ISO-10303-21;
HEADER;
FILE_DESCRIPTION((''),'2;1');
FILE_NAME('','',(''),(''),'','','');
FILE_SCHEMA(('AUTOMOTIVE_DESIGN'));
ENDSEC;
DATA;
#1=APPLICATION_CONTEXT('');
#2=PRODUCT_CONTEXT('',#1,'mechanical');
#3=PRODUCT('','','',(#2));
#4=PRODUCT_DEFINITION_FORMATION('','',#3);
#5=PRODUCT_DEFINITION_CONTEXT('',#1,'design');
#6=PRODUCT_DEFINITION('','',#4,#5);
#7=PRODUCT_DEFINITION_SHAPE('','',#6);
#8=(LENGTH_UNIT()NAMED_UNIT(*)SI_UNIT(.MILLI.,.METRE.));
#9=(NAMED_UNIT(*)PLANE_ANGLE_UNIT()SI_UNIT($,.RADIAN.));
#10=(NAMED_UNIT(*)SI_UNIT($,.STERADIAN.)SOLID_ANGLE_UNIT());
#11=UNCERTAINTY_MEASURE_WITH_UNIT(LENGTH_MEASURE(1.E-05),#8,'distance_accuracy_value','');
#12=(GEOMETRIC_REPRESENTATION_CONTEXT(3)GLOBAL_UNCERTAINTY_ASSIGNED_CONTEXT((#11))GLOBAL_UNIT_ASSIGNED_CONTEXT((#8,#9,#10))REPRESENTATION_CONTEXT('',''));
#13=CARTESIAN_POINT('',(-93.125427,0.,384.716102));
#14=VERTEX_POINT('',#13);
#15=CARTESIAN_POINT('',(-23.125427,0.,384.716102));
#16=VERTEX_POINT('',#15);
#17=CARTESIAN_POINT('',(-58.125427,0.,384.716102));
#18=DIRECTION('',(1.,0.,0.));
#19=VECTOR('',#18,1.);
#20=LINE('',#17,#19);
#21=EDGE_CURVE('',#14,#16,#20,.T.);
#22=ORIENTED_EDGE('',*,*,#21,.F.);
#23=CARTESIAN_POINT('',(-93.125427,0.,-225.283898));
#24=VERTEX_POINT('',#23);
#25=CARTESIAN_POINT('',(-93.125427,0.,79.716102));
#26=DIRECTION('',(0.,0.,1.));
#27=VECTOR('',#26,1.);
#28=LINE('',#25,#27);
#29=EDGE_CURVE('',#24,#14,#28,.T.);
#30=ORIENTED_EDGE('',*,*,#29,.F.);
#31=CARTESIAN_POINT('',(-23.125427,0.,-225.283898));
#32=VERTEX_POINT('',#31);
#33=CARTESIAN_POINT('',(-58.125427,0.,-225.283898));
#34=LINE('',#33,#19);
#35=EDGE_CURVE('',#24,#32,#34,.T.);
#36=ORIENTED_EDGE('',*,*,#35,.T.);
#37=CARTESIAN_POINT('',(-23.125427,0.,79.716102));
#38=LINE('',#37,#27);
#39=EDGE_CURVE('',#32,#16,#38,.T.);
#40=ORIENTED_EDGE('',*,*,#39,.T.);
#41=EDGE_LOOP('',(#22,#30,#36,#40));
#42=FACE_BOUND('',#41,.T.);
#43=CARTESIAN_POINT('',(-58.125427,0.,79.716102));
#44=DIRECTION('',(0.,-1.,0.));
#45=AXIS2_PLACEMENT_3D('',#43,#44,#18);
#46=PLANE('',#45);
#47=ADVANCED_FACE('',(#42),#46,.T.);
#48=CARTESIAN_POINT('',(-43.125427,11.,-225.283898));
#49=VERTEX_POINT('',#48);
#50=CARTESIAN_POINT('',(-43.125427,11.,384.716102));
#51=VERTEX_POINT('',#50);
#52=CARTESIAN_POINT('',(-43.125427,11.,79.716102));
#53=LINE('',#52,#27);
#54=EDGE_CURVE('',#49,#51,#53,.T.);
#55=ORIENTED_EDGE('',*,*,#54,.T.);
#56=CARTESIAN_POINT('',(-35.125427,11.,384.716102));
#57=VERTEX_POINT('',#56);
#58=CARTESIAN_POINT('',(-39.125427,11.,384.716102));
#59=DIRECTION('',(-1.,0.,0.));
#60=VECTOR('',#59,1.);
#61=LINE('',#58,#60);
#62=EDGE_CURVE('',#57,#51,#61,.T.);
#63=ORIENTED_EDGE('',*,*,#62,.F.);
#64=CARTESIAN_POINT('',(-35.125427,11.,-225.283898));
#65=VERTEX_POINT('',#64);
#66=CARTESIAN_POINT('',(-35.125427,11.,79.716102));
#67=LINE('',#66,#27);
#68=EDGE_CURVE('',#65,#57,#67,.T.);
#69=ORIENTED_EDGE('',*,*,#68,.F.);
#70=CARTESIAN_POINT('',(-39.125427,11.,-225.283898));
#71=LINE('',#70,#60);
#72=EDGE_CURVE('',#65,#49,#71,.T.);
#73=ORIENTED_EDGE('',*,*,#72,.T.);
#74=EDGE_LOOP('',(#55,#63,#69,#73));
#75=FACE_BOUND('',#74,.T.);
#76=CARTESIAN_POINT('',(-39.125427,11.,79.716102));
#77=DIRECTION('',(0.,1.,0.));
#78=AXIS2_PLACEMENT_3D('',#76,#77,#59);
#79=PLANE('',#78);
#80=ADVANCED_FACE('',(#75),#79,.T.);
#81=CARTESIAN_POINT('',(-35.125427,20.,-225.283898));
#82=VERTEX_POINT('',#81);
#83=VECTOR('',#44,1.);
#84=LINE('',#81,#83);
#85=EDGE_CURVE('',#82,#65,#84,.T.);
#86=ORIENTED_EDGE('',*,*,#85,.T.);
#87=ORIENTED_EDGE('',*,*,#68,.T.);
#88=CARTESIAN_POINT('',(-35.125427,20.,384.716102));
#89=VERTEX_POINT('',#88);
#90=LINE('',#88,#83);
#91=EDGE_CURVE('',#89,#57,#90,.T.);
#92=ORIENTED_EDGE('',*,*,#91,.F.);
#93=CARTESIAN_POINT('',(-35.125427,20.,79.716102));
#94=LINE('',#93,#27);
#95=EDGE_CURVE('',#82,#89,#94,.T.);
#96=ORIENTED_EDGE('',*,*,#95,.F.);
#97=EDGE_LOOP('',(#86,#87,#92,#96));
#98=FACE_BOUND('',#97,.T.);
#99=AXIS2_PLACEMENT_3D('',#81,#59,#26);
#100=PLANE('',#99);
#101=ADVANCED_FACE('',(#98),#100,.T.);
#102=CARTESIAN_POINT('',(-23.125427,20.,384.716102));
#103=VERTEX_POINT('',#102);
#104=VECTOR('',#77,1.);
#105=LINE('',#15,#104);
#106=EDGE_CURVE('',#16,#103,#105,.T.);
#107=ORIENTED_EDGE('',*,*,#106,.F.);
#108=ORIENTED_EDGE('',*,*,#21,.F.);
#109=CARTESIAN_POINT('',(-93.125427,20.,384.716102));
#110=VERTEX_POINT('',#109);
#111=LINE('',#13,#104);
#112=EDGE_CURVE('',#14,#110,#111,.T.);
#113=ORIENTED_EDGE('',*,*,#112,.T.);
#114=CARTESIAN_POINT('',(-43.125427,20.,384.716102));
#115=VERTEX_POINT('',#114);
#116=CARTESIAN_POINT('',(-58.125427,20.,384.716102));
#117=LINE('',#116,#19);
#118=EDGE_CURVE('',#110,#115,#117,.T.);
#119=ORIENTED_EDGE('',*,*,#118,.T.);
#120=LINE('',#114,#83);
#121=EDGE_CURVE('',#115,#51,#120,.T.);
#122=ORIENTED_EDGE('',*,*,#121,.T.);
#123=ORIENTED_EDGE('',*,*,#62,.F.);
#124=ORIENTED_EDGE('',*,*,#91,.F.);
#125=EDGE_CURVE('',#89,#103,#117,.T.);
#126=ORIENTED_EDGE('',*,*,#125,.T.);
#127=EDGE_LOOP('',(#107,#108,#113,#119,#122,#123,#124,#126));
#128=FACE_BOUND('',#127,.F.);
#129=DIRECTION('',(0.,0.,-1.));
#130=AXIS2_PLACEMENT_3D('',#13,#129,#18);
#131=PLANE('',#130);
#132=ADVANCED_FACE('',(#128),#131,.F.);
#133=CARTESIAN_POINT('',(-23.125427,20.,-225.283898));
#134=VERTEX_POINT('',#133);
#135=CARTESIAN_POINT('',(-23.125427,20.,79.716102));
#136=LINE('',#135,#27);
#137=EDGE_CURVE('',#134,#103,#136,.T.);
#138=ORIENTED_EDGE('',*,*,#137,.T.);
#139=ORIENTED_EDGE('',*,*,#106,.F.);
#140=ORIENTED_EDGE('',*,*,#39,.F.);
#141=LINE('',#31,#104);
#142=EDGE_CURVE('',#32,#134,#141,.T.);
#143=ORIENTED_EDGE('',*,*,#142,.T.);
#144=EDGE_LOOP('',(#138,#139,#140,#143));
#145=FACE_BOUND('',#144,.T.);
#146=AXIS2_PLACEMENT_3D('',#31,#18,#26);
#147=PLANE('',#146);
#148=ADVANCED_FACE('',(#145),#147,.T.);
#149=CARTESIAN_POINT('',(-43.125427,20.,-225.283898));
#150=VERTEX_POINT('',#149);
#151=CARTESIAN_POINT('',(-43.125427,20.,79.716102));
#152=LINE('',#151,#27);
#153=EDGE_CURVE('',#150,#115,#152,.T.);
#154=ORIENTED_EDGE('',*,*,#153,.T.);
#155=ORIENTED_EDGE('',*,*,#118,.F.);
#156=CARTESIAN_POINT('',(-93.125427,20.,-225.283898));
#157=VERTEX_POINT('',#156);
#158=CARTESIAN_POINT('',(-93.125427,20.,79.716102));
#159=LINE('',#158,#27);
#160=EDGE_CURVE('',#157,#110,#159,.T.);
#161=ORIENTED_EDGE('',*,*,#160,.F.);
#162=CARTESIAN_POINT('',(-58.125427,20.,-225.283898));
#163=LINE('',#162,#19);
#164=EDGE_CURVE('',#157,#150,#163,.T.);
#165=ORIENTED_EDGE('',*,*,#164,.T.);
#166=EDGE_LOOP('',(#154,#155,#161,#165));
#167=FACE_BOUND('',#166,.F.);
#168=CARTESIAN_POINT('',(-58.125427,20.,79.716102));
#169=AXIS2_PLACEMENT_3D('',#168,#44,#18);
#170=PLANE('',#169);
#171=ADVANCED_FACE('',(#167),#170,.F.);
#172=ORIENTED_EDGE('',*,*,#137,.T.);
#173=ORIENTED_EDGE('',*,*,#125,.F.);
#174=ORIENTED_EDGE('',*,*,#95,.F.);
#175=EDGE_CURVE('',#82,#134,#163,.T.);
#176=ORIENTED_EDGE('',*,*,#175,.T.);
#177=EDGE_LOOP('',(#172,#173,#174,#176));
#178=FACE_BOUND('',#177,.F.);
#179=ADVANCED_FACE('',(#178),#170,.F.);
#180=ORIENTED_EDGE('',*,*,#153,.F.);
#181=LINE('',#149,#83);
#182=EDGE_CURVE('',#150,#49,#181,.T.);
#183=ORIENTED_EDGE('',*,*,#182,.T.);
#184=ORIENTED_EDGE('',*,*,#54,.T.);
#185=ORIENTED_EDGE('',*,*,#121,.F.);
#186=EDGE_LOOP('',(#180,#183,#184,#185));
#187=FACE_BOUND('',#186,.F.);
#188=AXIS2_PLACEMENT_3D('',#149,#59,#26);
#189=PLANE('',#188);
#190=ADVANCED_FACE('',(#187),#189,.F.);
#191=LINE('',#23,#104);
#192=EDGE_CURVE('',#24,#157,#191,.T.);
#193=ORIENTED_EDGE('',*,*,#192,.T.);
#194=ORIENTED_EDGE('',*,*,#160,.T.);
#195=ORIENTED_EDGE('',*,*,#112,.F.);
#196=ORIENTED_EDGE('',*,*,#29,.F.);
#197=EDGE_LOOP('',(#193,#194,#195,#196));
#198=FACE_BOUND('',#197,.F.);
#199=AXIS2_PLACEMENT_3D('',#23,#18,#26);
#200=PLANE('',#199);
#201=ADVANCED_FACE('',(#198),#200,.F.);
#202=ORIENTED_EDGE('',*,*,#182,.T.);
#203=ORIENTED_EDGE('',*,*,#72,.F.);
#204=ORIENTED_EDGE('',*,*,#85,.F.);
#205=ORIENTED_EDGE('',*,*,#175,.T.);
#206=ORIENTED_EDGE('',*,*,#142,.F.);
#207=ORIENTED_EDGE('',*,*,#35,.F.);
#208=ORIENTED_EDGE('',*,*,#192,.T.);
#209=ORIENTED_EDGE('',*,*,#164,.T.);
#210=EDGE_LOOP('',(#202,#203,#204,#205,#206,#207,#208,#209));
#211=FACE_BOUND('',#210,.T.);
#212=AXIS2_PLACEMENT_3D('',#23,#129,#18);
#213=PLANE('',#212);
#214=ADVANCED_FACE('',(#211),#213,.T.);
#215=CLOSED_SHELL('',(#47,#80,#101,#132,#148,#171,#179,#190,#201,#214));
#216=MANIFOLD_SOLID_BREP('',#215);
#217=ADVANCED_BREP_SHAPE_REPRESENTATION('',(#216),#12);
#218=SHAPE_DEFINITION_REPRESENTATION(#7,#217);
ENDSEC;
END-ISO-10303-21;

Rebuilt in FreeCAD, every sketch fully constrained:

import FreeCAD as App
import Part
import Sketcher

doc = App.newDocument("Part")
params = doc.addObject("Spreadsheet::Sheet", "Params")
for row, (alias, value) in enumerate([
    ("sketch1_width", "70 mm"),
    ("sketch1_height", "610 mm"),
    ("pad1_length", "20 mm"),
    ("sketch2_width", "8 mm"),
    ("sketch2_height", "610 mm"),
    ("pocket1_length", "9 mm"),
], start=1):
    params.set(f"A{row}", alias)
    params.set(f"B{row}", "=" + value)
    params.setAlias(f"B{row}", alias)

body = doc.addObject("PartDesign::Body", "Body")

# Sketch on XZ plane
sketch1 = doc.addObject("Sketcher::SketchObject", "Sketch")
body.addObject(sketch1)
sketch1.AttachmentSupport = (doc.XZ_Plane, [""])
sketch1.MapMode = "FlatFace"
sketch1.addGeometry(Part.LineSegment(App.Vector(-93, 385, 0), App.Vector(-93, -225, 0)), False)
sketch1.addGeometry(Part.LineSegment(App.Vector(-93, -225, 0), App.Vector(-23, -225, 0)), False)
sketch1.addGeometry(Part.LineSegment(App.Vector(-23, -225, 0), App.Vector(-23, 385, 0)), False)
sketch1.addGeometry(Part.LineSegment(App.Vector(-23, 385, 0), App.Vector(-93, 385, 0)), False)
sketch1.addConstraint(Sketcher.Constraint("Coincident", 0, 2, 1, 1))
sketch1.addConstraint(Sketcher.Constraint("Coincident", 1, 2, 2, 1))
sketch1.addConstraint(Sketcher.Constraint("Coincident", 2, 2, 3, 1))
sketch1.addConstraint(Sketcher.Constraint("Coincident", 3, 2, 0, 1))
sketch1.addConstraint(Sketcher.Constraint("Vertical", 0))
sketch1.addConstraint(Sketcher.Constraint("Horizontal", 1))
sketch1.addConstraint(Sketcher.Constraint("Vertical", 2))
sketch1.addConstraint(Sketcher.Constraint("Horizontal", 3))
sketch1.addConstraint(Sketcher.Constraint("DistanceX", 1, 1, 1, 2, 70.0))
sketch1.addConstraint(Sketcher.Constraint("DistanceY", 0, 2, 0, 1, 610.0))
sketch1.addConstraint(Sketcher.Constraint("DistanceY", 0, 2, -1, 1, 225.283898))
sketch1.addConstraint(Sketcher.Constraint("DistanceX", 0, 2, -1, 1, 93.125427))
sketch1.setExpression("Constraints[8]", "Params.sketch1_width")
sketch1.setExpression("Constraints[9]", "Params.sketch1_height")
pad1 = doc.addObject("PartDesign::Pad", "Pad")
body.addObject(pad1)
pad1.Profile = sketch1
pad1.setExpression("Length", "Params.pad1_length")
pad1.Reversed = True

# Sketch on XZ plane
sketch2 = doc.addObject("Sketcher::SketchObject", "Sketch001")
body.addObject(sketch2)
sketch2.AttachmentSupport = (doc.XZ_Plane, [""])
sketch2.MapMode = "FlatFace"
sketch2.AttachmentOffset = App.Placement(App.Vector(0, 0, -20), App.Rotation())
sketch2.addGeometry(Part.LineSegment(App.Vector(-35, 385, 0), App.Vector(-35, -225, 0)), False)
sketch2.addGeometry(Part.LineSegment(App.Vector(-35, -225, 0), App.Vector(-43, -225, 0)), False)
sketch2.addGeometry(Part.LineSegment(App.Vector(-43, -225, 0), App.Vector(-43, 385, 0)), False)
sketch2.addGeometry(Part.LineSegment(App.Vector(-43, 385, 0), App.Vector(-35, 385, 0)), False)
sketch2.addConstraint(Sketcher.Constraint("Coincident", 0, 2, 1, 1))
sketch2.addConstraint(Sketcher.Constraint("Coincident", 1, 2, 2, 1))
sketch2.addConstraint(Sketcher.Constraint("Coincident", 2, 2, 3, 1))
sketch2.addConstraint(Sketcher.Constraint("Coincident", 3, 2, 0, 1))
sketch2.addConstraint(Sketcher.Constraint("Vertical", 0))
sketch2.addConstraint(Sketcher.Constraint("Horizontal", 1))
sketch2.addConstraint(Sketcher.Constraint("Vertical", 2))
sketch2.addConstraint(Sketcher.Constraint("Horizontal", 3))
sketch2.addConstraint(Sketcher.Constraint("DistanceX", 1, 2, 1, 1, 8.0))
sketch2.addConstraint(Sketcher.Constraint("DistanceY", 0, 2, 0, 1, 610.0))
sketch2.addConstraint(Sketcher.Constraint("DistanceY", 0, 2, -1, 1, 225.283898))
sketch2.addConstraint(Sketcher.Constraint("DistanceX", 0, 2, -1, 1, 35.125427))
sketch2.setExpression("Constraints[8]", "Params.sketch2_width")
sketch2.setExpression("Constraints[9]", "Params.sketch2_height")
pocket1 = doc.addObject("PartDesign::Pocket", "Pocket")
body.addObject(pocket1)
pocket1.Profile = sketch2
pocket1.setExpression("Length", "Params.pocket1_length")
pocket1.Reversed = True

doc.recompute()
